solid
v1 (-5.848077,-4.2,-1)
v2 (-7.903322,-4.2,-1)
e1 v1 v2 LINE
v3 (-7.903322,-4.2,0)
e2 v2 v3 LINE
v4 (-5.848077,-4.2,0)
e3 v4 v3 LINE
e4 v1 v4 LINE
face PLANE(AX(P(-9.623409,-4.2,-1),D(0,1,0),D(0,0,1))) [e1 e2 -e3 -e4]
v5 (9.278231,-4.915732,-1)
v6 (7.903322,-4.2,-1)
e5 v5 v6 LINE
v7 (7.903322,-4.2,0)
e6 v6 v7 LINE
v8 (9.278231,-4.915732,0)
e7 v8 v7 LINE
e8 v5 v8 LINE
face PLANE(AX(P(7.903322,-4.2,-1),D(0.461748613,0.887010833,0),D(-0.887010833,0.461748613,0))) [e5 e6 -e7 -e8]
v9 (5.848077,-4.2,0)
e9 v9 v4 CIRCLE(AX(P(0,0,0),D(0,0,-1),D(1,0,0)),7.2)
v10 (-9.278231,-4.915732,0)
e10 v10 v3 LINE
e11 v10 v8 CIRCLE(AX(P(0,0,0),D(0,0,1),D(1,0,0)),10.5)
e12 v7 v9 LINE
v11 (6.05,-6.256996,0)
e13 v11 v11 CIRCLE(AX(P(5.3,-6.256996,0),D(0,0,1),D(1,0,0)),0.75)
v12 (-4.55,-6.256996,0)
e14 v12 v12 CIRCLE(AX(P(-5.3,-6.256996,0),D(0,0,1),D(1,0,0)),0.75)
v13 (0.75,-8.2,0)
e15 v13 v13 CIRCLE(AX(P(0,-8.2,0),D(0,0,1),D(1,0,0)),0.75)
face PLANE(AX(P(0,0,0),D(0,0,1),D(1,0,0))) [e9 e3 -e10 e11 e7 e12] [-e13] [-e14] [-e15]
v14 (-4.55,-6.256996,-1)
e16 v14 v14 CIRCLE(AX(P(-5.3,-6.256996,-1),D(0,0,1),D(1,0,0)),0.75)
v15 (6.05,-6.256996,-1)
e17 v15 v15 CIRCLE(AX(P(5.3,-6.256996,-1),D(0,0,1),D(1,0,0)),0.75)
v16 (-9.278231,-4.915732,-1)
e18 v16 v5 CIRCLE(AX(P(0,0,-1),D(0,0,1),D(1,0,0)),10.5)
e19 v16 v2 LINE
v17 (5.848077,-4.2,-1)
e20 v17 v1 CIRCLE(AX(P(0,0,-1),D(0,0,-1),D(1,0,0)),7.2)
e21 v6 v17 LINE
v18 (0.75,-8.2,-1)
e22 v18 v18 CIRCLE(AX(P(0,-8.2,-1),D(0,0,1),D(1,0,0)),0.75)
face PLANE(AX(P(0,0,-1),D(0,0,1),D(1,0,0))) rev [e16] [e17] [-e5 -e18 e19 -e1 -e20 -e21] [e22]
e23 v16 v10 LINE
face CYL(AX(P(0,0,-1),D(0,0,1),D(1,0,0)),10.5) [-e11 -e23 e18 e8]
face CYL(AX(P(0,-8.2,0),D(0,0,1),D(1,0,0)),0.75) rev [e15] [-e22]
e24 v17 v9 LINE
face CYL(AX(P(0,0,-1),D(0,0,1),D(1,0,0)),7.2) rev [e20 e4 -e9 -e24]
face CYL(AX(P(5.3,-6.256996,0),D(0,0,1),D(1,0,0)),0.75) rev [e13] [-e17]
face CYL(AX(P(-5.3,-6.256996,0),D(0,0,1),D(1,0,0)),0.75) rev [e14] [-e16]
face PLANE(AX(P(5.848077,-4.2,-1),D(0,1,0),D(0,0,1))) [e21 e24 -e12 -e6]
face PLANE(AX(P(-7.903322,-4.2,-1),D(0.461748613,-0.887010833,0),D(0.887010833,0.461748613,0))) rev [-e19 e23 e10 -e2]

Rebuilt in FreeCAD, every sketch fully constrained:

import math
import FreeCAD as App
import Part
import Sketcher
Q = App.Units.Quantity

doc = App.newDocument("Part")
body = doc.addObject("PartDesign::Body", "Body")

# Sketch on XY plane
sketch1 = body.newObject("Sketcher::SketchObject", "Sketch")
sketch1.AttachmentSupport = (doc.getObject("XY_Plane"), [""])
sketch1.MapMode = "FlatFace"
sketch1.addGeometry([
    Part.LineSegment(App.Vector(-5.848077, -4.2, 0), App.Vector(-9.623409, -4.2, 0)),
    Part.ArcOfCircle(Part.Circle(App.Vector(0, 0, 0), App.Vector(0, 0, 1), 10.5), math.radians(-156.421822), math.radians(-23.578178)),
    Part.LineSegment(App.Vector(9.623409, -4.2, 0), App.Vector(5.848077, -4.2, 0)),
    Part.ArcOfCircle(Part.Circle(App.Vector(0, 0, 0), App.Vector(0, 0, 1), 7.2), math.radians(-144.314665), math.radians(-35.685335)),
], False)
sketch1.addConstraint([
    Sketcher.Constraint("Coincident", 0, 2, 1, 1),
    Sketcher.Constraint("Coincident", 1, 2, 2, 1),
    Sketcher.Constraint("Coincident", 2, 2, 3, 2),
    Sketcher.Constraint("Coincident", 3, 1, 0, 1),
    Sketcher.Constraint("Horizontal", 0),
    Sketcher.Constraint("Horizontal", 2),
    Sketcher.Constraint("Coincident", 1, 3, -1, 1),
    Sketcher.Constraint("Coincident", 3, 3, -1, 1),
    Sketcher.Constraint("Horizontal", 0, 2, 1, 2),
    Sketcher.Constraint("Radius", 1, 10.5),
    Sketcher.Constraint("Radius", 3, 7.2),
    Sketcher.Constraint("DistanceY", 0, 2, -1, 1, 4.2),
])
pad1 = body.newObject("PartDesign::Pad", "Pad")
pad1.Profile = sketch1
pad1.Length = 1
pad1.Reversed = True

# Sketch on XY plane
sketch2 = body.newObject("Sketcher::SketchObject", "Sketch001")
sketch2.AttachmentSupport = (doc.getObject("XY_Plane"), [""])
sketch2.MapMode = "FlatFace"
sketch2.addGeometry([
    Part.Circle(App.Vector(0, -8.2, 0), App.Vector(0, 0, 1), 0.75),
    Part.Circle(App.Vector(-5.3, -6.256996, 0), App.Vector(0, 0, 1), 0.75),
    Part.Circle(App.Vector(5.3, -6.256996, 0), App.Vector(0, 0, 1), 0.75),
], False)
sketch2.addConstraint([
    Sketcher.Constraint("Equal", 0, 1),
    Sketcher.Constraint("Equal", 1, 2),
    Sketcher.Constraint("Symmetric", 1, 3, 2, 3, -2),
    Sketcher.Constraint("PointOnObject", 0, 3, -2),
    Sketcher.Constraint("Diameter", 0, 1.5),
    Sketcher.Constraint("DistanceY", 0, 3, -1, 1, 8.2),
    Sketcher.Constraint("DistanceX", 1, 3, -1, 1, 5.3),
    Sketcher.Constraint("DistanceY", 1, 3, -1, 1, 6.256996),
])
doc.recompute()
hole = body.newObject("PartDesign::Hole", "Hole")
hole.Profile = sketch2
hole.ThreadType = "None"
hole.Diameter = 1.5
hole.DepthType = "Dimension"
hole.Depth = 1
hole.DrillPoint = "Flat"

# Sketch on XY plane
sketch3 = body.newObject("Sketcher::SketchObject", "Sketch002")
sketch3.AttachmentSupport = (doc.getObject("XY_Plane"), [""])
sketch3.MapMode = "FlatFace"
sketch3.addGeometry([
    Part.LineSegment(App.Vector(-9.278231, -4.915732, 0), App.Vector(-7.903322, -4.2, 0)),
    Part.LineSegment(App.Vector(-7.903322, -4.2, 0), App.Vector(-9.623409, -4.2, 0)),
    Part.ArcOfCircle(Part.Circle(App.Vector(0, 0, 0), App.Vector(0, 0, 1), 10.5), math.radians(-156.421822), math.radians(-152.084752)),
], False)
sketch3.addConstraint([
    Sketcher.Constraint("Coincident", 0, 2, 1, 1),
    Sketcher.Constraint("Coincident", 1, 2, 2, 1),
    Sketcher.Constraint("Coincident", 2, 2, 0, 1),
    Sketcher.Constraint("Horizontal", 1),
    Sketcher.Constraint("Coincident", 2, 3, -1, 1),
    Sketcher.Constraint("Radius", 2, 10.5),
    Sketcher.Constraint("Angle", 0, Q("27.5 deg")),
    Sketcher.Constraint("DistanceY", 0, 2, -1, 1, 4.2),
    Sketcher.Constraint("DistanceX", 1, 2, 1, 1, 1.720087),
])
pocket1 = body.newObject("PartDesign::Pocket", "Pocket")
pocket1.Profile = sketch3
pocket1.Type = "ThroughAll"
doc.recompute()

mirrored = body.newObject("PartDesign::Mirrored", "Mirrored")
mirrored.Originals = [pocket1]
mirrored.MirrorPlane = (doc.getObject("YZ_Plane"), [""])
body.Tip = mirrored

doc.recompute()
